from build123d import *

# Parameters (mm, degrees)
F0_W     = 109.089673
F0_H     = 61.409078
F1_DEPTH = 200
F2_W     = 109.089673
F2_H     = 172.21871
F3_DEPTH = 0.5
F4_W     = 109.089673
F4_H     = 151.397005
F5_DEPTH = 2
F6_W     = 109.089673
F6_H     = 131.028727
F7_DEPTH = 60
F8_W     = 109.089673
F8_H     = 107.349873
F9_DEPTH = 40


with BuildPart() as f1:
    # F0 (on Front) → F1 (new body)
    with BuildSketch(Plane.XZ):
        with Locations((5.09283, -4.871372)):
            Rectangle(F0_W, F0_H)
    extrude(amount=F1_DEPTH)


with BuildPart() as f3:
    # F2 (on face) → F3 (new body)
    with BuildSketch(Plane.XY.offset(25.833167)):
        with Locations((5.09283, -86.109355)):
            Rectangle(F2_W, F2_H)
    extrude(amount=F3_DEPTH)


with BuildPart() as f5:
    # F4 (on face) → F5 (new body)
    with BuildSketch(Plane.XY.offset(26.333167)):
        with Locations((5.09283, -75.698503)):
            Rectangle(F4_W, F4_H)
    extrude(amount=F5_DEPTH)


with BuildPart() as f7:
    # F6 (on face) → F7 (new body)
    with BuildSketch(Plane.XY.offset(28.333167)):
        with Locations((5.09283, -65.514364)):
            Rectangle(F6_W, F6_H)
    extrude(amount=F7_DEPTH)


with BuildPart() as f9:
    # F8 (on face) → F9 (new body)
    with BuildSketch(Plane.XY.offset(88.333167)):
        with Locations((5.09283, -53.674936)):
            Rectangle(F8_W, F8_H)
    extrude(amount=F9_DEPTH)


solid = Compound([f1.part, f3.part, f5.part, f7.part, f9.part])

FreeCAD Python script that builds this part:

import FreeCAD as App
import Part
import Sketcher

V = App.Vector


def add_polygon(sketch, points):
    """Adds a closed chain of lines whose ends are joined by coincident constraints."""
    first, n = sketch.GeometryCount, len(points)
    for a, b in zip(points, points[1:] + points[:1]):
        sketch.addGeometry(Part.LineSegment(App.Vector(*a, 0), App.Vector(*b, 0)), False)
    for i in range(n):
        sketch.addConstraint(Sketcher.Constraint("Coincident", first + i, 2, first + (i + 1) % n, 1))

doc = App.newDocument("Part")
body = doc.addObject("PartDesign::Body", "Body")

# Sketch on XZ plane
sketch1 = doc.addObject("Sketcher::SketchObject", "Sketch")
body.addObject(sketch1)
sketch1.AttachmentSupport = (doc.XZ_Plane, [""])
sketch1.MapMode = "FlatFace"
add_polygon(sketch1, [(-49, 26), (-49, -36), (60, -36), (60, 26)])  # lines 0-3
sketch1.addConstraint(Sketcher.Constraint("Vertical", 0))
sketch1.addConstraint(Sketcher.Constraint("Horizontal", 1))
sketch1.addConstraint(Sketcher.Constraint("Vertical", 2))
sketch1.addConstraint(Sketcher.Constraint("Horizontal", 3))
sketch1.addConstraint(Sketcher.Constraint("DistanceX", 1, 1, 1, 2, 109.089673))
sketch1.addConstraint(Sketcher.Constraint("DistanceY", 0, 2, 0, 1, 61.409078))
sketch1.addConstraint(Sketcher.Constraint("DistanceY", 0, 2, -1, 1, 35.575911))
sketch1.addConstraint(Sketcher.Constraint("DistanceX", 0, 2, -1, 1, 49.452007))
pad1 = doc.addObject("PartDesign::Pad", "Pad")
body.addObject(pad1)
pad1.Profile = sketch1
pad1.Length = 200
body2 = doc.addObject("PartDesign::Body", "Body001")

# Sketch on XY plane
sketch2 = doc.addObject("Sketcher::SketchObject", "Sketch001")
body2.addObject(sketch2)
sketch2.AttachmentSupport = (doc.getObject("XY_Plane001"), [""])
sketch2.MapMode = "FlatFace"
sketch2.AttachmentOffset = App.Placement(V(0, 0, 25.833167), App.Rotation())
add_polygon(sketch2, [(-49, 0), (-49, -172), (60, -172), (60, 0)])  # lines 0-3
sketch2.addConstraint(Sketcher.Constraint("Vertical", 0))
sketch2.addConstraint(Sketcher.Constraint("Horizontal", 1))
sketch2.addConstraint(Sketcher.Constraint("Vertical", 2))
sketch2.addConstraint(Sketcher.Constraint("Horizontal", 3))
sketch2.addConstraint(Sketcher.Constraint("PointOnObject", 2, 2, -1))
sketch2.addConstraint(Sketcher.Constraint("DistanceY", 0, 2, 0, 1, 172.21871))
sketch2.addConstraint(Sketcher.Constraint("DistanceX", 1, 1, 1, 2, 109.089673))
sketch2.addConstraint(Sketcher.Constraint("DistanceX", 0, 2, -1, 1, 49.452007))
pad2 = doc.addObject("PartDesign::Pad", "Pad001")
body2.addObject(pad2)
pad2.Profile = sketch2
pad2.Length = 0.5
body3 = doc.addObject("PartDesign::Body", "Body002")

# Sketch on XY plane
sketch3 = doc.addObject("Sketcher::SketchObject", "Sketch002")
body3.addObject(sketch3)
sketch3.AttachmentSupport = (doc.getObject("XY_Plane002"), [""])
sketch3.MapMode = "FlatFace"
sketch3.AttachmentOffset = App.Placement(V(0, 0, 26.333167), App.Rotation())
add_polygon(sketch3, [(-49, 0), (-49, -151), (60, -151), (60, 0)])  # lines 0-3
sketch3.addConstraint(Sketcher.Constraint("Vertical", 0))
sketch3.addConstraint(Sketcher.Constraint("Horizontal", 1))
sketch3.addConstraint(Sketcher.Constraint("Vertical", 2))
sketch3.addConstraint(Sketcher.Constraint("Horizontal", 3))
sketch3.addConstraint(Sketcher.Constraint("PointOnObject", 2, 2, -1))
sketch3.addConstraint(Sketcher.Constraint("DistanceX", 1, 1, 1, 2, 109.089673))
sketch3.addConstraint(Sketcher.Constraint("DistanceY", 0, 2, 0, 1, 151.397005))
sketch3.addConstraint(Sketcher.Constraint("DistanceX", 0, 2, -1, 1, 49.452007))
pad3 = doc.addObject("PartDesign::Pad", "Pad002")
body3.addObject(pad3)
pad3.Profile = sketch3
pad3.Length = 2
body4 = doc.addObject("PartDesign::Body", "Body003")

# Sketch on XY plane
sketch4 = doc.addObject("Sketcher::SketchObject", "Sketch003")
body4.addObject(sketch4)
sketch4.AttachmentSupport = (doc.getObject("XY_Plane003"), [""])
sketch4.MapMode = "FlatFace"
sketch4.AttachmentOffset = App.Placement(V(0, 0, 28.333167), App.Rotation())
add_polygon(sketch4, [(-49, 0), (-49, -131), (60, -131), (60, 0)])  # lines 0-3
sketch4.addConstraint(Sketcher.Constraint("Vertical", 0))
sketch4.addConstraint(Sketcher.Constraint("Horizontal", 1))
sketch4.addConstraint(Sketcher.Constraint("Vertical", 2))
sketch4.addConstraint(Sketcher.Constraint("Horizontal", 3))
sketch4.addConstraint(Sketcher.Constraint("PointOnObject", 2, 2, -1))
sketch4.addConstraint(Sketcher.Constraint("DistanceX", 1, 1, 1, 2, 109.089673))
sketch4.addConstraint(Sketcher.Constraint("DistanceY", 0, 2, 0, 1, 131.028727))
sketch4.addConstraint(Sketcher.Constraint("DistanceX", 0, 2, -1, 1, 49.452007))
pad4 = doc.addObject("PartDesign::Pad", "Pad003")
body4.addObject(pad4)
pad4.Profile = sketch4
pad4.Length = 60
body5 = doc.addObject("PartDesign::Body", "Body004")

# Sketch on XY plane
sketch5 = doc.addObject("Sketcher::SketchObject", "Sketch004")
body5.addObject(sketch5)
sketch5.AttachmentSupport = (doc.getObject("XY_Plane004"), [""])
sketch5.MapMode = "FlatFace"
sketch5.AttachmentOffset = App.Placement(V(0, 0, 88.333167), App.Rotation())
add_polygon(sketch5, [(-49, 0), (-49, -107), (60, -107), (60, 0)])  # lines 0-3
sketch5.addConstraint(Sketcher.Constraint("Vertical", 0))
sketch5.addConstraint(Sketcher.Constraint("Horizontal", 1))
sketch5.addConstraint(Sketcher.Constraint("Vertical", 2))
sketch5.addConstraint(Sketcher.Constraint("Horizontal", 3))
sketch5.addConstraint(Sketcher.Constraint("PointOnObject", 2, 2, -1))
sketch5.addConstraint(Sketcher.Constraint("DistanceX", 1, 1, 1, 2, 109.089673))
sketch5.addConstraint(Sketcher.Constraint("DistanceY", 0, 2, 0, 1, 107.349873))
sketch5.addConstraint(Sketcher.Constraint("DistanceX", 0, 2, -1, 1, 49.452007))
pad5 = doc.addObject("PartDesign::Pad", "Pad004")
body5.addObject(pad5)
pad5.Profile = sketch5
pad5.Length = 40

doc.recompute()
